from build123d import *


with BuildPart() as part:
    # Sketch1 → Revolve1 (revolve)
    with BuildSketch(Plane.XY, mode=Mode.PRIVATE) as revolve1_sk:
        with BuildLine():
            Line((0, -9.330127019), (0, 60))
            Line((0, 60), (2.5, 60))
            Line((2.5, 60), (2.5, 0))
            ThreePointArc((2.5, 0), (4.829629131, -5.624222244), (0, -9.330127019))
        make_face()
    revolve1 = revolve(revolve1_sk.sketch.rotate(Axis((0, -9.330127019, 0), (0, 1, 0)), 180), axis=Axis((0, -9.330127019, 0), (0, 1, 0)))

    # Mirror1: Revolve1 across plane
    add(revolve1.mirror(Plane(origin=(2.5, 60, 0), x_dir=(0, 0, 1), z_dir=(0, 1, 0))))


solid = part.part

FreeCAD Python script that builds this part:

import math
import FreeCAD as App
import Part
import Sketcher

V = App.Vector

doc = App.newDocument("Part")
params = doc.addObject("Spreadsheet::Sheet", "Params")
for row, (alias, value) in enumerate([
    ("sketch1_radius", "5 mm"),
    ("sketch1_height", "60 mm"),
    ("sketch1_width", "2.5 mm"),
    ("revolution_angle", "360 deg"),
], start=1):
    params.set(f"A{row}", alias)
    params.set(f"B{row}", "=" + value)
    params.setAlias(f"B{row}", alias)

body = doc.addObject("PartDesign::Body", "Body")

sketch1 = body.newObject("Sketcher::SketchObject", "Sketch")
sketch1.AttachmentSupport = (doc.getObject("XY_Plane"), [""])
sketch1.MapMode = "FlatFace"
sketch1.addGeometry([
    Part.LineSegment(V(0, 60, 0), V(0, -9.330127, 0)),
    Part.ArcOfCircle(Part.Circle(V(0, -4.330127, 0), V(0, 0, 1), 5), math.radians(-90), math.radians(60)),
    Part.LineSegment(V(2.5, 0, 0), V(2.5, 60, 0)),
    Part.LineSegment(V(2.5, 60, 0), V(0, 60, 0)),
], False)
sketch1.addConstraint([
    Sketcher.Constraint("Coincident", 0, 2, 1, 1),
    Sketcher.Constraint("Coincident", 1, 2, 2, 1),
    Sketcher.Constraint("Coincident", 2, 2, 3, 1),
    Sketcher.Constraint("Coincident", 3, 2, 0, 1),
    Sketcher.Constraint("Vertical", 0),
    Sketcher.Constraint("Vertical", 2),
    Sketcher.Constraint("Horizontal", 3),
    Sketcher.Constraint("PointOnObject", 1, 3, -2),
    Sketcher.Constraint("PointOnObject", 0, 2, -2),
    Sketcher.Constraint("PointOnObject", 1, 2, -1),
    Sketcher.Constraint("Radius", 1, 5.0),
    Sketcher.Constraint("DistanceY", 2, 1, 2, 2, 60.0),
    Sketcher.Constraint("DistanceX", 3, 2, 3, 1, 2.5),
])
sketch1.setExpression("Constraints[10]", "Params.sketch1_radius")
sketch1.setExpression("Constraints[11]", "Params.sketch1_height")
sketch1.setExpression("Constraints[12]", "Params.sketch1_width")
revolution = body.newObject("PartDesign::Revolution", "Revolution")
revolution.Profile = sketch1
revolution.ReferenceAxis = (sketch1, ["V_Axis"])
revolution.setExpression("Angle", "Params.revolution_angle")
doc.recompute()

datumplane = body.newObject("PartDesign::Plane", "DatumPlane")
datumplane.AttachmentSupport = (doc.getObject("XZ_Plane"), [""])
datumplane.MapMode = "FlatFace"
datumplane.AttachmentOffset = App.Placement(V(0, 0, -60), App.Rotation())
mirrored = body.newObject("PartDesign::Mirrored", "Mirrored")
mirrored.Originals = [revolution]
mirrored.MirrorPlane = (datumplane, [""])
body.Tip = mirrored

doc.recompute()
